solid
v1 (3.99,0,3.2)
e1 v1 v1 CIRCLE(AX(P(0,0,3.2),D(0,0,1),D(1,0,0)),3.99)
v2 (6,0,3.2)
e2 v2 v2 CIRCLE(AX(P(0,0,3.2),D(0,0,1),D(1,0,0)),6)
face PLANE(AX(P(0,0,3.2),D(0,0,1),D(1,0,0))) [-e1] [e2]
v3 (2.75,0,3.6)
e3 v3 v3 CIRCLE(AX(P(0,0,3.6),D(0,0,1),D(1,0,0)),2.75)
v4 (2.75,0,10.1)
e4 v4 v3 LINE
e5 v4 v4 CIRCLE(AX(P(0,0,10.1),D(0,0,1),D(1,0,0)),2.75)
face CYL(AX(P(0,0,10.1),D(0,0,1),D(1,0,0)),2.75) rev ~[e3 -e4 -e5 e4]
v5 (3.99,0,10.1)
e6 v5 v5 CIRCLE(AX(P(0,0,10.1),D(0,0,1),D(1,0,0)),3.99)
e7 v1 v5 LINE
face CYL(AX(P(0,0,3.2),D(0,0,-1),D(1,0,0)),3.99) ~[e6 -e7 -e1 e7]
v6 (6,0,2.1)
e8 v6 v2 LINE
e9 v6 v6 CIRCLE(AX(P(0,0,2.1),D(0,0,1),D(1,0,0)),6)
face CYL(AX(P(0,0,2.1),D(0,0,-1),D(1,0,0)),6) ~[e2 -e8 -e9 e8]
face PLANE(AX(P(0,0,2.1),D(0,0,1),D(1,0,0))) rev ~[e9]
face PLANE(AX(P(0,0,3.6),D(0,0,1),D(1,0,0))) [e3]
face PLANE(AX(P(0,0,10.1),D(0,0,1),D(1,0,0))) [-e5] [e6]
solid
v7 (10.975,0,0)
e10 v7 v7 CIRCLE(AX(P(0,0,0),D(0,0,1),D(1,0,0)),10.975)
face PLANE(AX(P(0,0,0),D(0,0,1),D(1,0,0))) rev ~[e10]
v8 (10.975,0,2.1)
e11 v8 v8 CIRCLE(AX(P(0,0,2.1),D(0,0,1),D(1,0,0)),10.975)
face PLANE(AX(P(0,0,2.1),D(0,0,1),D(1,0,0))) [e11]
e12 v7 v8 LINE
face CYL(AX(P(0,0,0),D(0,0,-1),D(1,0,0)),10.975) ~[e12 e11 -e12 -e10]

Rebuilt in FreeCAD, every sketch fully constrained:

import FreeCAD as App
import Part
import Sketcher
from FreeCAD import Vector

doc = App.newDocument("Part")
params = doc.addObject("Spreadsheet::Sheet", "Params")
for row, (alias, value) in enumerate([
    ("sketch1_diameter", "21.95 mm"),
    ("pad1_length", "2.1 mm"),
    ("sketch2_diameter", "12 mm"),
    ("pad2_length", "1.1 mm"),
    ("sketch3_diameter", "7.98 mm"),
    ("pad3_length", "6.9 mm"),
    ("sketch4_diameter", "5.5 mm"),
    ("pocket1_length", "6.5 mm"),
], start=1):
    params.set(f"A{row}", alias)
    params.set(f"B{row}", "=" + value)
    params.setAlias(f"B{row}", alias)

body = doc.addObject("PartDesign::Body", "Body")

# Sketch on XY plane
sketch1 = doc.addObject("Sketcher::SketchObject", "Sketch")
body.addObject(sketch1)
sketch1.AttachmentSupport = (doc.XY_Plane, [""])
sketch1.MapMode = "FlatFace"
sketch1.addGeometry(Part.Circle(Vector(0, 0, 0), Vector(0, 0, 1), 10.975), False)
sketch1.addConstraint(Sketcher.Constraint("Coincident", 0, 3, -1, 1))
sketch1.addConstraint(Sketcher.Constraint("Diameter", 0, 21.95))
sketch1.setExpression("Constraints[1]", "Params.sketch1_diameter")
pad1 = doc.addObject("PartDesign::Pad", "Pad")
body.addObject(pad1)
pad1.Profile = sketch1
pad1.setExpression("Length", "Params.pad1_length")
body2 = doc.addObject("PartDesign::Body", "Body001")

# Sketch on XY plane
sketch2 = doc.addObject("Sketcher::SketchObject", "Sketch001")
body2.addObject(sketch2)
sketch2.AttachmentSupport = (doc.getObject("XY_Plane001"), [""])
sketch2.MapMode = "FlatFace"
sketch2.AttachmentOffset = App.Placement(Vector(0, 0, 2.1), App.Rotation())
sketch2.addGeometry(Part.Circle(Vector(0, 0, 0), Vector(0, 0, 1), 6), False)
sketch2.addConstraint(Sketcher.Constraint("Coincident", 0, 3, -1, 1))
sketch2.addConstraint(Sketcher.Constraint("Diameter", 0, 12.0))
sketch2.setExpression("Constraints[1]", "Params.sketch2_diameter")
pad2 = doc.addObject("PartDesign::Pad", "Pad001")
body2.addObject(pad2)
pad2.Profile = sketch2
pad2.setExpression("Length", "Params.pad2_length")

# Sketch on XY plane
sketch3 = doc.addObject("Sketcher::SketchObject", "Sketch002")
body2.addObject(sketch3)
sketch3.AttachmentSupport = (doc.getObject("XY_Plane001"), [""])
sketch3.MapMode = "FlatFace"
sketch3.AttachmentOffset = App.Placement(Vector(0, 0, 3.2), App.Rotation())
sketch3.addGeometry(Part.Circle(Vector(0, 0, 0), Vector(0, 0, 1), 3.99), False)
sketch3.addConstraint(Sketcher.Constraint("Coincident", 0, 3, -1, 1))
sketch3.addConstraint(Sketcher.Constraint("Diameter", 0, 7.98))
sketch3.setExpression("Constraints[1]", "Params.sketch3_diameter")
pad3 = doc.addObject("PartDesign::Pad", "Pad002")
body2.addObject(pad3)
pad3.Profile = sketch3
pad3.setExpression("Length", "Params.pad3_length")

# Sketch on XY plane
sketch4 = doc.addObject("Sketcher::SketchObject", "Sketch003")
body2.addObject(sketch4)
sketch4.AttachmentSupport = (doc.getObject("XY_Plane001"), [""])
sketch4.MapMode = "FlatFace"
sketch4.AttachmentOffset = App.Placement(Vector(0, 0, 10.1), App.Rotation())
sketch4.addGeometry(Part.Circle(Vector(0, 0, 0), Vector(0, 0, 1), 2.75), False)
sketch4.addConstraint(Sketcher.Constraint("Coincident", 0, 3, -1, 1))
sketch4.addConstraint(Sketcher.Constraint("Diameter", 0, 5.5))
sketch4.setExpression("Constraints[1]", "Params.sketch4_diameter")
pocket1 = doc.addObject("PartDesign::Pocket", "Pocket")
body2.addObject(pocket1)
pocket1.Profile = sketch4
pocket1.setExpression("Length", "Params.pocket1_length")

doc.recompute()
